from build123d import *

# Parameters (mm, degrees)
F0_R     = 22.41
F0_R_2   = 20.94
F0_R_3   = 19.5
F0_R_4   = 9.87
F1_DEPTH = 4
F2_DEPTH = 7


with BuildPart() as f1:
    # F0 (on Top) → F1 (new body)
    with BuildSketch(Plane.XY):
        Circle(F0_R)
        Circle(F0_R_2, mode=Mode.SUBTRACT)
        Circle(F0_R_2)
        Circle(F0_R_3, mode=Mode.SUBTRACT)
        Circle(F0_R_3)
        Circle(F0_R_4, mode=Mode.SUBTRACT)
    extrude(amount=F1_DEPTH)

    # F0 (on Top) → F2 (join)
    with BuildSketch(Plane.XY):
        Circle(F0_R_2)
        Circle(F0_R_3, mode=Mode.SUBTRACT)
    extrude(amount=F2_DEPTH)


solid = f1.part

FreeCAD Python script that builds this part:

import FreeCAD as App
import Part
import Sketcher
Q = App.Units.Quantity

doc = App.newDocument("Part")
params = doc.addObject("Spreadsheet::Sheet", "Params")
for row, (alias, value) in enumerate([
    ("sketch1_diameter", "44.82 mm"),
    ("sketch1_diameter2", "19.74 mm"),
    ("pad1_length", "4 mm"),
    ("sketch2_diameter", "39 mm"),
    ("sketch2_diameter2", "41.88 mm"),
    ("pad2_length", "7 mm"),
], start=1):
    params.set(f"A{row}", alias)
    params.set(f"B{row}", "=" + value)
    params.setAlias(f"B{row}", alias)

body = doc.addObject("PartDesign::Body", "Body")

# Sketch on XY plane
sketch1 = body.newObject("Sketcher::SketchObject", "Sketch")
sketch1.AttachmentSupport = (doc.getObject("XY_Plane"), [""])
sketch1.MapMode = "FlatFace"
sketch1.addGeometry([
    Part.Circle(App.Vector(0, 0, 0), App.Vector(0, 0, 1), 22),
    Part.Circle(App.Vector(0, 0, 0), App.Vector(0, 0, 1), 10),
], False)
sketch1.addConstraint([
    Sketcher.Constraint("Coincident", 0, 3, -1, 1),
    Sketcher.Constraint("Coincident", 1, 3, -1, 1),
    Sketcher.Constraint("Diameter", 0, Q("44.82 mm")),
    Sketcher.Constraint("Diameter", 1, Q("19.74 mm")),
])
sketch1.setExpression("Constraints[2]", "Params.sketch1_diameter")
sketch1.setExpression("Constraints[3]", "Params.sketch1_diameter2")
pad1 = body.newObject("PartDesign::Pad", "Pad")
pad1.Profile = sketch1
pad1.setExpression("Length", "Params.pad1_length")

# Sketch on XY plane
sketch2 = body.newObject("Sketcher::SketchObject", "Sketch001")
sketch2.AttachmentSupport = (doc.getObject("XY_Plane"), [""])
sketch2.MapMode = "FlatFace"
sketch2.addGeometry([
    Part.Circle(App.Vector(0, 0, 0), App.Vector(0, 0, 1), 21),
    Part.Circle(App.Vector(0, 0, 0), App.Vector(0, 0, 1), 20),
], False)
sketch2.addConstraint([
    Sketcher.Constraint("Coincident", 0, 3, -1, 1),
    Sketcher.Constraint("Coincident", 1, 3, -1, 1),
    Sketcher.Constraint("Diameter", 1, Q("39 mm")),
    Sketcher.Constraint("Diameter", 0, Q("41.88 mm")),
])
sketch2.setExpression("Constraints[2]", "Params.sketch2_diameter")
sketch2.setExpression("Constraints[3]", "Params.sketch2_diameter2")
pad2 = body.newObject("PartDesign::Pad", "Pad001")
pad2.Profile = sketch2
pad2.setExpression("Length", "Params.pad2_length")

doc.recompute()
